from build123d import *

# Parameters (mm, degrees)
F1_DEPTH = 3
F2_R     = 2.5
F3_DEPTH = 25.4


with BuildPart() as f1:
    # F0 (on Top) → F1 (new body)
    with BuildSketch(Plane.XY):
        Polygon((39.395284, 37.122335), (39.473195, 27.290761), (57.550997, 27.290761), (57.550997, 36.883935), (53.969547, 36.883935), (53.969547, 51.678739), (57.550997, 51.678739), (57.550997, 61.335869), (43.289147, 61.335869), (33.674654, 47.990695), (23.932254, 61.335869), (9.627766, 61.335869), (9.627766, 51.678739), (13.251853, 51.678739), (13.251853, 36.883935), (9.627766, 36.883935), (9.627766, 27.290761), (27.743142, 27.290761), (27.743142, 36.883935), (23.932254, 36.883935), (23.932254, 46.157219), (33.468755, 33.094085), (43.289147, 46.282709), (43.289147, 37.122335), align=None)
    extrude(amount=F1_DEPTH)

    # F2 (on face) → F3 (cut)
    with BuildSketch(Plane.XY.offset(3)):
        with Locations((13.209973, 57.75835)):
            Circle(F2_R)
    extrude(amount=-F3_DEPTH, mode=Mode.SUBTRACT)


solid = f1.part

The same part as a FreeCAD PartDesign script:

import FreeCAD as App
import Part
import Sketcher

doc = App.newDocument("Part")
body = doc.addObject("PartDesign::Body", "Body")

# Sketch on XY plane
sketch1 = body.newObject("Sketcher::SketchObject", "Sketch")
sketch1.AttachmentSupport = (doc.getObject("XY_Plane"), [""])
sketch1.MapMode = "FlatFace"
sketch1.addGeometry(Part.LineSegment(App.Vector(39.4, 37.1, 0), App.Vector(39.5, 27.3, 0)), False)
sketch1.addGeometry(Part.LineSegment(App.Vector(39.5, 27.3, 0), App.Vector(57.6, 27.3, 0)), False)
sketch1.addGeometry(Part.LineSegment(App.Vector(57.6, 27.3, 0), App.Vector(57.6, 36.9, 0)), False)
sketch1.addGeometry(Part.LineSegment(App.Vector(57.6, 36.9, 0), App.Vector(54, 36.9, 0)), False)
sketch1.addGeometry(Part.LineSegment(App.Vector(54, 36.9, 0), App.Vector(54, 51.7, 0)), False)
sketch1.addGeometry(Part.LineSegment(App.Vector(54, 51.7, 0), App.Vector(57.6, 51.7, 0)), False)
sketch1.addGeometry(Part.LineSegment(App.Vector(57.6, 51.7, 0), App.Vector(57.6, 61.3, 0)), False)
sketch1.addGeometry(Part.LineSegment(App.Vector(57.6, 61.3, 0), App.Vector(43.3, 61.3, 0)), False)
sketch1.addGeometry(Part.LineSegment(App.Vector(43.3, 61.3, 0), App.Vector(33.7, 48, 0)), False)
sketch1.addGeometry(Part.LineSegment(App.Vector(33.7, 48, 0), App.Vector(23.9, 61.3, 0)), False)
sketch1.addGeometry(Part.LineSegment(App.Vector(23.9, 61.3, 0), App.Vector(9.6, 61.3, 0)), False)
sketch1.addGeometry(Part.LineSegment(App.Vector(9.6, 61.3, 0), App.Vector(9.6, 51.7, 0)), False)
sketch1.addGeometry(Part.LineSegment(App.Vector(9.6, 51.7, 0), App.Vector(13.3, 51.7, 0)), False)
sketch1.addGeometry(Part.LineSegment(App.Vector(13.3, 51.7, 0), App.Vector(13.3, 36.9, 0)), False)
sketch1.addGeometry(Part.LineSegment(App.Vector(13.3, 36.9, 0), App.Vector(9.6, 36.9, 0)), False)
sketch1.addGeometry(Part.LineSegment(App.Vector(9.6, 36.9, 0), App.Vector(9.6, 27.3, 0)), False)
sketch1.addGeometry(Part.LineSegment(App.Vector(9.6, 27.3, 0), App.Vector(27.7, 27.3, 0)), False)
sketch1.addGeometry(Part.LineSegment(App.Vector(27.7, 27.3, 0), App.Vector(27.7, 36.9, 0)), False)
sketch1.addGeometry(Part.LineSegment(App.Vector(27.7, 36.9, 0), App.Vector(23.9, 36.9, 0)), False)
sketch1.addGeometry(Part.LineSegment(App.Vector(23.9, 36.9, 0), App.Vector(23.9, 46.2, 0)), False)
sketch1.addGeometry(Part.LineSegment(App.Vector(23.9, 46.2, 0), App.Vector(33.5, 33.1, 0)), False)
sketch1.addGeometry(Part.LineSegment(App.Vector(33.5, 33.1, 0), App.Vector(43.3, 46.3, 0)), False)
sketch1.addGeometry(Part.LineSegment(App.Vector(43.3, 46.3, 0), App.Vector(43.3, 37.1, 0)), False)
sketch1.addGeometry(Part.LineSegment(App.Vector(43.3, 37.1, 0), App.Vector(39.4, 37.1, 0)), False)
sketch1.addConstraint(Sketcher.Constraint("Coincident", 0, 2, 1, 1))
sketch1.addConstraint(Sketcher.Constraint("Coincident", 1, 2, 2, 1))
sketch1.addConstraint(Sketcher.Constraint("Coincident", 2, 2, 3, 1))
sketch1.addConstraint(Sketcher.Constraint("Coincident", 3, 2, 4, 1))
sketch1.addConstraint(Sketcher.Constraint("Coincident", 4, 2, 5, 1))
sketch1.addConstraint(Sketcher.Constraint("Coincident", 5, 2, 6, 1))
sketch1.addConstraint(Sketcher.Constraint("Coincident", 6, 2, 7, 1))
sketch1.addConstraint(Sketcher.Constraint("Coincident", 7, 2, 8, 1))
sketch1.addConstraint(Sketcher.Constraint("Coincident", 8, 2, 9, 1))
sketch1.addConstraint(Sketcher.Constraint("Coincident", 9, 2, 10, 1))
sketch1.addConstraint(Sketcher.Constraint("Coincident", 10, 2, 11, 1))
sketch1.addConstraint(Sketcher.Constraint("Coincident", 11, 2, 12, 1))
sketch1.addConstraint(Sketcher.Constraint("Coincident", 12, 2, 13, 1))
sketch1.addConstraint(Sketcher.Constraint("Coincident", 13, 2, 14, 1))
sketch1.addConstraint(Sketcher.Constraint("Coincident", 14, 2, 15, 1))
sketch1.addConstraint(Sketcher.Constraint("Coincident", 15, 2, 16, 1))
sketch1.addConstraint(Sketcher.Constraint("Coincident", 16, 2, 17, 1))
sketch1.addConstraint(Sketcher.Constraint("Coincident", 17, 2, 18, 1))
sketch1.addConstraint(Sketcher.Constraint("Coincident", 18, 2, 19, 1))
sketch1.addConstraint(Sketcher.Constraint("Coincident", 19, 2, 20, 1))
sketch1.addConstraint(Sketcher.Constraint("Coincident", 20, 2, 21, 1))
sketch1.addConstraint(Sketcher.Constraint("Coincident", 21, 2, 22, 1))
sketch1.addConstraint(Sketcher.Constraint("Coincident", 22, 2, 23, 1))
sketch1.addConstraint(Sketcher.Constraint("Coincident", 23, 2, 0, 1))
sketch1.addConstraint(Sketcher.Constraint("Horizontal", 1))
sketch1.addConstraint(Sketcher.Constraint("Vertical", 2))
sketch1.addConstraint(Sketcher.Constraint("Horizontal", 3))
sketch1.addConstraint(Sketcher.Constraint("Vertical", 4))
sketch1.addConstraint(Sketcher.Constraint("Horizontal", 5))
sketch1.addConstraint(Sketcher.Constraint("Vertical", 6))
sketch1.addConstraint(Sketcher.Constraint("Horizontal", 7))
sketch1.addConstraint(Sketcher.Constraint("Horizontal", 10))
sketch1.addConstraint(Sketcher.Constraint("Vertical", 11))
sketch1.addConstraint(Sketcher.Constraint("Horizontal", 12))
sketch1.addConstraint(Sketcher.Constraint("Vertical", 13))
sketch1.addConstraint(Sketcher.Constraint("Horizontal", 14))
sketch1.addConstraint(Sketcher.Constraint("Vertical", 15))
sketch1.addConstraint(Sketcher.Constraint("Horizontal", 16))
sketch1.addConstraint(Sketcher.Constraint("Vertical", 17))
sketch1.addConstraint(Sketcher.Constraint("Horizontal", 18))
sketch1.addConstraint(Sketcher.Constraint("Vertical", 19))
sketch1.addConstraint(Sketcher.Constraint("Vertical", 22))
sketch1.addConstraint(Sketcher.Constraint("Horizontal", 23))
sketch1.addConstraint(Sketcher.Constraint("Parallel", 9, 20))
sketch1.addConstraint(Sketcher.Constraint("Horizontal", 7, 2, 9, 2))
sketch1.addConstraint(Sketcher.Constraint("Horizontal", 5, 2, 11, 2))
sketch1.addConstraint(Sketcher.Constraint("Horizontal", 3, 2, 13, 2))
sketch1.addConstraint(Sketcher.Constraint("Horizontal", 1, 2, 15, 2))
sketch1.addConstraint(Sketcher.Constraint("Horizontal", 14, 2, 17, 2))
sketch1.addConstraint(Sketcher.Constraint("Vertical", 2, 2, 5, 2))
sketch1.addConstraint(Sketcher.Constraint("Vertical", 11, 2, 14, 2))
sketch1.addConstraint(Sketcher.Constraint("Vertical", 9, 2, 18, 2))
sketch1.addConstraint(Sketcher.Constraint("Vertical", 7, 2, 21, 2))
sketch1.addConstraint(Sketcher.Constraint("DistanceX", 3, 2, 3, 1, 3.58145))
sketch1.addConstraint(Sketcher.Constraint("DistanceX", 7, 2, 7, 1, 14.26185))
sketch1.addConstraint(Sketcher.Constraint("DistanceX", 10, 2, 10, 1, 14.304488))
sketch1.addConstraint(Sketcher.Constraint("DistanceY", 6, 1, 6, 2, 9.65713))
sketch1.addConstraint(Sketcher.Constraint("DistanceX", 9, 2, 8, 2, 9.7424))
sketch1.addConstraint(Sketcher.Constraint("DistanceX", 12, 2, 9, 2, 10.680401))
sketch1.addConstraint(Sketcher.Constraint("DistanceX", 18, 2, 20, 2, 9.536501))
sketch1.addConstraint(Sketcher.Constraint("DistanceY", 3, 2, 22, 2, 0.2384))
sketch1.addConstraint(Sketcher.Constraint("Distance", 8, 16.447861))
sketch1.addConstraint(Sketcher.Constraint("DistanceX", 1, 1, 1, 2, 18.077802))
sketch1.addConstraint(Sketcher.Constraint("DistanceX", 16, 1, 16, 2, 18.115376))
sketch1.addConstraint(Sketcher.Constraint("DistanceX", 23, 2, 23, 1, 3.893863))
sketch1.addConstraint(Sketcher.Constraint("DistanceY", 2, 1, 2, 2, 9.593174))
sketch1.addConstraint(Sketcher.Constraint("DistanceY", 4, 1, 4, 2, 14.794804))
sketch1.addConstraint(Sketcher.Constraint("DistanceY", 19, 1, 19, 2, 9.273284))
sketch1.addConstraint(Sketcher.Constraint("DistanceY", 22, 2, 22, 1, 9.160374))
sketch1.addConstraint(Sketcher.Constraint("DistanceY", -1, 1, 0, 2, 27.290761))
sketch1.addConstraint(Sketcher.Constraint("DistanceX", -1, 1, 16, 2, 27.743142))
sketch1.addConstraint(Sketcher.Constraint("DistanceX", 8, 2, 0, 2, 5.798541))
pad1 = body.newObject("PartDesign::Pad", "Pad")
pad1.Profile = sketch1
pad1.Length = 3

# Sketch on XY plane
sketch2 = body.newObject("Sketcher::SketchObject", "Sketch001")
sketch2.AttachmentSupport = (doc.getObject("XY_Plane"), [""])
sketch2.MapMode = "FlatFace"
sketch2.AttachmentOffset = App.Placement(App.Vector(0, 0, 3), App.Rotation())
sketch2.addGeometry(Part.Circle(App.Vector(13.2, 57.8, 0), App.Vector(0, 0, 1), 2.5), False)
sketch2.addConstraint(Sketcher.Constraint("Diameter", 0, 5.0))
sketch2.addConstraint(Sketcher.Constraint("DistanceY", -1, 1, 0, 3, 57.75835))
sketch2.addConstraint(Sketcher.Constraint("DistanceX", -1, 1, 0, 3, 13.209973))
pocket1 = body.newObject("PartDesign::Pocket", "Pocket")
pocket1.Profile = sketch2
pocket1.Length = 25.4

doc.recompute()
